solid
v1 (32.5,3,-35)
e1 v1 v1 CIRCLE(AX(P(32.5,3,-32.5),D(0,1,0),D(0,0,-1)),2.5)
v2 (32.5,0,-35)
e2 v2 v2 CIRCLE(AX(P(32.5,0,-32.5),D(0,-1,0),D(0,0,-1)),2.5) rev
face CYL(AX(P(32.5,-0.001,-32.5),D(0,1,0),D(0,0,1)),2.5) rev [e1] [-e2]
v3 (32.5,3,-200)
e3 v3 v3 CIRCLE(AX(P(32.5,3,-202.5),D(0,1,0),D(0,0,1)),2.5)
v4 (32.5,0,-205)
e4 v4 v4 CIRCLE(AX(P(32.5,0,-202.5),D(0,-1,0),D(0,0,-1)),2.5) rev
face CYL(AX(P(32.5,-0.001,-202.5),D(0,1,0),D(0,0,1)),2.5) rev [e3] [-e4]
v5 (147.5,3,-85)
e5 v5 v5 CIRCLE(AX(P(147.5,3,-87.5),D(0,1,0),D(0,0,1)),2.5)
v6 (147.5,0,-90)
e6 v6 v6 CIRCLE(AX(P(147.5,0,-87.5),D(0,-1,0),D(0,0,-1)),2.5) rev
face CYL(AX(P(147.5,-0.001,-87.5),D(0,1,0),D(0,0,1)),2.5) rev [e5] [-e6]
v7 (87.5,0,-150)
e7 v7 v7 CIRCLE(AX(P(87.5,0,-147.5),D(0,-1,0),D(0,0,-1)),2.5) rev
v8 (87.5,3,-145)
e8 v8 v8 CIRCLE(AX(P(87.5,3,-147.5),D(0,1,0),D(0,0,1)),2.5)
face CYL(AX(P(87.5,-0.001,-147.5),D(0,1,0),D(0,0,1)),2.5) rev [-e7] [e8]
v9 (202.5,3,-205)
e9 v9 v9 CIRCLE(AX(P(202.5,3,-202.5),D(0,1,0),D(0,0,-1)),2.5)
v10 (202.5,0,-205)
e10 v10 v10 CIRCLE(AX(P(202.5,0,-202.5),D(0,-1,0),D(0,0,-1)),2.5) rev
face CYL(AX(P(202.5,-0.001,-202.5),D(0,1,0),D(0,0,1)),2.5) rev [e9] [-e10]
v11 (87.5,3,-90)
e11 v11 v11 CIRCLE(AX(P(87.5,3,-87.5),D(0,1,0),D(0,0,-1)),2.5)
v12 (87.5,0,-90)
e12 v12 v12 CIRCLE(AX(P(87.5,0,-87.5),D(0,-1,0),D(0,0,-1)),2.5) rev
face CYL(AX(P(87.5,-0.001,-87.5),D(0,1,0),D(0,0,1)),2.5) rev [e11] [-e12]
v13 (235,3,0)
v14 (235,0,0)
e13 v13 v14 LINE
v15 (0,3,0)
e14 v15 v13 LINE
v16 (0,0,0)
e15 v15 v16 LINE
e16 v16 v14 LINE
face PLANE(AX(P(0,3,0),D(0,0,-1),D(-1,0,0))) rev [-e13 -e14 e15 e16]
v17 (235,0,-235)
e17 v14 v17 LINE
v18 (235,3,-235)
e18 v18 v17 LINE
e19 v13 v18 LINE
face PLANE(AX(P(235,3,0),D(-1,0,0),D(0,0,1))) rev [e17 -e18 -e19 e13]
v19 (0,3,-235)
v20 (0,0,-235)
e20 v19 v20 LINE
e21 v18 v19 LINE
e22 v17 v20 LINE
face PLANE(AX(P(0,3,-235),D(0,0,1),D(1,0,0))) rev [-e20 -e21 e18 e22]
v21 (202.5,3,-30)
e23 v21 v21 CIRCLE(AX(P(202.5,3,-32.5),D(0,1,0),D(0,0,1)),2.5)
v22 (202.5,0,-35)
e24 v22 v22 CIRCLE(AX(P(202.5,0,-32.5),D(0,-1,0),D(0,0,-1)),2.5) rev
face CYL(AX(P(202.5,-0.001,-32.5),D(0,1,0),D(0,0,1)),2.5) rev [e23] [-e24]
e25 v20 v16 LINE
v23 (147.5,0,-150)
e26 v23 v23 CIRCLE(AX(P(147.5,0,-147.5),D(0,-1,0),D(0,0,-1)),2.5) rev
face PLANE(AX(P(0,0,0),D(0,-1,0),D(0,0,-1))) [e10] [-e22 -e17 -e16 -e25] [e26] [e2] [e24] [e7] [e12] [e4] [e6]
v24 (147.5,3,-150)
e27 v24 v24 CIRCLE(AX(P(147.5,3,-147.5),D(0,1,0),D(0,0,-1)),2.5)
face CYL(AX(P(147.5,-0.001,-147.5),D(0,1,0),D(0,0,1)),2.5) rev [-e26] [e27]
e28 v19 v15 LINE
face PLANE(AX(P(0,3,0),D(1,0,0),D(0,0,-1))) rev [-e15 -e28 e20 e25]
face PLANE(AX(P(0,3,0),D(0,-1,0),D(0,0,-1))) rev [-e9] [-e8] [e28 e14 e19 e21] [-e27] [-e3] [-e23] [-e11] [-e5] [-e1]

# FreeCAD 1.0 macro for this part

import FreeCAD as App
import Part
import Sketcher
Q = App.Units.Quantity


def add_polygon(sketch, points):
    """Adds a closed chain of lines whose ends are joined by coincident constraints."""
    first, n = sketch.GeometryCount, len(points)
    for a, b in zip(points, points[1:] + points[:1]):
        sketch.addGeometry(Part.LineSegment(App.Vector(*a, 0), App.Vector(*b, 0)), False)
    for i in range(n):
        sketch.addConstraint(Sketcher.Constraint("Coincident", first + i, 2, first + (i + 1) % n, 1))

doc = App.newDocument("Part")
body = doc.addObject("PartDesign::Body", "Body")

# Sketch on XZ plane
sketch1 = body.newObject("Sketcher::SketchObject", "Sketch")
sketch1.AttachmentSupport = (doc.getObject("XZ_Plane"), [""])
sketch1.MapMode = "FlatFace"
add_polygon(sketch1, [(0, -235), (0, 0), (235, 0), (235, -235)])  # lines 0-3
sketch1.addConstraint(Sketcher.Constraint("Vertical", 0))
sketch1.addConstraint(Sketcher.Constraint("Horizontal", 1))
sketch1.addConstraint(Sketcher.Constraint("Vertical", 2))
sketch1.addConstraint(Sketcher.Constraint("Horizontal", 3))
sketch1.addConstraint(Sketcher.Constraint("Coincident", 0, 2, -1, 1))
sketch1.addConstraint(Sketcher.Constraint("Equal", 3, 0))
sketch1.addConstraint(Sketcher.Constraint("DistanceX", 1, 1, 1, 2, Q("235 mm")))
pad1 = body.newObject("PartDesign::Pad", "Pad")
pad1.Profile = sketch1
pad1.Length = 3
pad1.Reversed = True

# Sketch on XZ plane
sketch2 = body.newObject("Sketcher::SketchObject", "Sketch001")
sketch2.AttachmentSupport = (doc.getObject("XZ_Plane"), [""])
sketch2.MapMode = "FlatFace"
sketch2.AttachmentOffset = App.Placement(App.Vector(0, 0, -3), App.Rotation())
sketch2.addGeometry(Part.Circle(App.Vector(32.5, -202.5, 0), App.Vector(0, 0, 1), 2.5), False)
sketch2.addConstraint(Sketcher.Constraint("Diameter", 0, Q("5 mm")))
sketch2.addConstraint(Sketcher.Constraint("DistanceX", -1, 1, 0, 3, Q("32.5 mm")))
sketch2.addConstraint(Sketcher.Constraint("DistanceY", 0, 3, -1, 1, Q("202.5 mm")))
pocket1 = body.newObject("PartDesign::Pocket", "Pocket")
pocket1.Profile = sketch2
pocket1.Type = "UpToFirst"
pocket1.Reversed = True

# Sketch on XZ plane
sketch3 = body.newObject("Sketcher::SketchObject", "Sketch002")
sketch3.AttachmentSupport = (doc.getObject("XZ_Plane"), [""])
sketch3.MapMode = "FlatFace"
sketch3.AttachmentOffset = App.Placement(App.Vector(0, 0, -3), App.Rotation())
sketch3.addGeometry(Part.Circle(App.Vector(202.5, -202.5, 0), App.Vector(0, 0, 1), 2.5), False)
sketch3.addConstraint(Sketcher.Constraint("Diameter", 0, Q("5 mm")))
sketch3.addConstraint(Sketcher.Constraint("DistanceX", -1, 1, 0, 3, Q("202.5 mm")))
sketch3.addConstraint(Sketcher.Constraint("DistanceY", 0, 3, -1, 1, Q("202.5 mm")))
pocket2 = body.newObject("PartDesign::Pocket", "Pocket001")
pocket2.Profile = sketch3
pocket2.Type = "UpToFirst"
pocket2.Reversed = True

# Sketch on XZ plane
sketch4 = body.newObject("Sketcher::SketchObject", "Sketch003")
sketch4.AttachmentSupport = (doc.getObject("XZ_Plane"), [""])
sketch4.MapMode = "FlatFace"
sketch4.AttachmentOffset = App.Placement(App.Vector(0, 0, -3), App.Rotation())
sketch4.addGeometry(Part.Circle(App.Vector(202.5, -32.5, 0), App.Vector(0, 0, 1), 2.5), False)
sketch4.addConstraint(Sketcher.Constraint("Diameter", 0, Q("5 mm")))
sketch4.addConstraint(Sketcher.Constraint("DistanceX", -1, 1, 0, 3, Q("202.5 mm")))
sketch4.addConstraint(Sketcher.Constraint("DistanceY", 0, 3, -1, 1, Q("32.5 mm")))
pocket3 = body.newObject("PartDesign::Pocket", "Pocket002")
pocket3.Profile = sketch4
pocket3.Type = "UpToFirst"
pocket3.Reversed = True

# Sketch on XZ plane
sketch5 = body.newObject("Sketcher::SketchObject", "Sketch004")
sketch5.AttachmentSupport = (doc.getObject("XZ_Plane"), [""])
sketch5.MapMode = "FlatFace"
sketch5.AttachmentOffset = App.Placement(App.Vector(0, 0, -3), App.Rotation())
sketch5.addGeometry(Part.Circle(App.Vector(32.5, -32.5, 0), App.Vector(0, 0, 1), 2.5), False)
sketch5.addConstraint(Sketcher.Constraint("Diameter", 0, Q("5 mm")))
sketch5.addConstraint(Sketcher.Constraint("DistanceX", -1, 1, 0, 3, Q("32.5 mm")))
sketch5.addConstraint(Sketcher.Constraint("DistanceY", 0, 3, -1, 1, Q("32.5 mm")))
pocket4 = body.newObject("PartDesign::Pocket", "Pocket003")
pocket4.Profile = sketch5
pocket4.Type = "UpToFirst"
pocket4.Reversed = True

# Sketch on XZ plane
sketch6 = body.newObject("Sketcher::SketchObject", "Sketch005")
sketch6.AttachmentSupport = (doc.getObject("XZ_Plane"), [""])
sketch6.MapMode = "FlatFace"
sketch6.AttachmentOffset = App.Placement(App.Vector(0, 0, -3), App.Rotation())
sketch6.addGeometry(Part.Circle(App.Vector(87.5, -147.5, 0), App.Vector(0, 0, 1), 2.5), False)
sketch6.addConstraint(Sketcher.Constraint("Diameter", 0, Q("5 mm")))
sketch6.addConstraint(Sketcher.Constraint("DistanceX", -1, 1, 0, 3, Q("87.5 mm")))
sketch6.addConstraint(Sketcher.Constraint("DistanceY", 0, 3, -1, 1, Q("147.5 mm")))
pocket5 = body.newObject("PartDesign::Pocket", "Pocket004")
pocket5.Profile = sketch6
pocket5.Type = "UpToFirst"
pocket5.Reversed = True

# Sketch on XZ plane
sketch7 = body.newObject("Sketcher::SketchObject", "Sketch006")
sketch7.AttachmentSupport = (doc.getObject("XZ_Plane"), [""])
sketch7.MapMode = "FlatFace"
sketch7.AttachmentOffset = App.Placement(App.Vector(0, 0, -3), App.Rotation())
sketch7.addGeometry(Part.Circle(App.Vector(147.5, -147.5, 0), App.Vector(0, 0, 1), 2.5), False)
sketch7.addConstraint(Sketcher.Constraint("Diameter", 0, Q("5 mm")))
sketch7.addConstraint(Sketcher.Constraint("DistanceX", -1, 1, 0, 3, Q("147.5 mm")))
sketch7.addConstraint(Sketcher.Constraint("DistanceY", 0, 3, -1, 1, Q("147.5 mm")))
pocket6 = body.newObject("PartDesign::Pocket", "Pocket005")
pocket6.Profile = sketch7
pocket6.Type = "UpToFirst"
pocket6.Reversed = True

# Sketch on XZ plane
sketch8 = body.newObject("Sketcher::SketchObject", "Sketch007")
sketch8.AttachmentSupport = (doc.getObject("XZ_Plane"), [""])
sketch8.MapMode = "FlatFace"
sketch8.AttachmentOffset = App.Placement(App.Vector(0, 0, -3), App.Rotation())
sketch8.addGeometry(Part.Circle(App.Vector(147.5, -87.5, 0), App.Vector(0, 0, 1), 2.5), False)
sketch8.addConstraint(Sketcher.Constraint("Diameter", 0, Q("5 mm")))
sketch8.addConstraint(Sketcher.Constraint("DistanceX", -1, 1, 0, 3, Q("147.5 mm")))
sketch8.addConstraint(Sketcher.Constraint("DistanceY", 0, 3, -1, 1, Q("87.5 mm")))
pocket7 = body.newObject("PartDesign::Pocket", "Pocket006")
pocket7.Profile = sketch8
pocket7.Type = "UpToFirst"
pocket7.Reversed = True

# Sketch on XZ plane
sketch9 = body.newObject("Sketcher::SketchObject", "Sketch008")
sketch9.AttachmentSupport = (doc.getObject("XZ_Plane"), [""])
sketch9.MapMode = "FlatFace"
sketch9.AttachmentOffset = App.Placement(App.Vector(0, 0, -3), App.Rotation())
sketch9.addGeometry(Part.Circle(App.Vector(87.5, -87.5, 0), App.Vector(0, 0, 1), 2.5), False)
sketch9.addConstraint(Sketcher.Constraint("Diameter", 0, Q("5 mm")))
sketch9.addConstraint(Sketcher.Constraint("DistanceX", -1, 1, 0, 3, Q("87.5 mm")))
sketch9.addConstraint(Sketcher.Constraint("DistanceY", 0, 3, -1, 1, Q("87.5 mm")))
pocket8 = body.newObject("PartDesign::Pocket", "Pocket007")
pocket8.Profile = sketch9
pocket8.Type = "UpToFirst"
pocket8.Reversed = True

doc.recompute()
